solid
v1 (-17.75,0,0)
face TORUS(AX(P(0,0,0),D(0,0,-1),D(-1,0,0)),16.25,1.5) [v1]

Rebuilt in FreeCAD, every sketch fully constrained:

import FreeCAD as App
import Part
import Sketcher
from FreeCAD import Vector

doc = App.newDocument("Part")
body = doc.addObject("PartDesign::Body", "Body")

# Sketch on XZ plane
sketch1 = doc.addObject("Sketcher::SketchObject", "Sketch")
body.addObject(sketch1)
sketch1.AttachmentSupport = (doc.XZ_Plane, [""])
sketch1.MapMode = "FlatFace"
sketch1.addGeometry(Part.Circle(Vector(-16.25, 0, 0), Vector(0, 0, 1), 1.5), False)
sketch1.addConstraint([
    Sketcher.Constraint("PointOnObject", 0, 3, -1),
    Sketcher.Constraint("Diameter", 0, 3.0),
    Sketcher.Constraint("DistanceX", 0, 3, -1, 1, 16.25),
])
revolution = doc.addObject("PartDesign::Revolution", "Revolution")
body.addObject(revolution)
revolution.Profile = sketch1
revolution.ReferenceAxis = (sketch1, ["V_Axis"])
revolution.Angle = 360

doc.recompute()
